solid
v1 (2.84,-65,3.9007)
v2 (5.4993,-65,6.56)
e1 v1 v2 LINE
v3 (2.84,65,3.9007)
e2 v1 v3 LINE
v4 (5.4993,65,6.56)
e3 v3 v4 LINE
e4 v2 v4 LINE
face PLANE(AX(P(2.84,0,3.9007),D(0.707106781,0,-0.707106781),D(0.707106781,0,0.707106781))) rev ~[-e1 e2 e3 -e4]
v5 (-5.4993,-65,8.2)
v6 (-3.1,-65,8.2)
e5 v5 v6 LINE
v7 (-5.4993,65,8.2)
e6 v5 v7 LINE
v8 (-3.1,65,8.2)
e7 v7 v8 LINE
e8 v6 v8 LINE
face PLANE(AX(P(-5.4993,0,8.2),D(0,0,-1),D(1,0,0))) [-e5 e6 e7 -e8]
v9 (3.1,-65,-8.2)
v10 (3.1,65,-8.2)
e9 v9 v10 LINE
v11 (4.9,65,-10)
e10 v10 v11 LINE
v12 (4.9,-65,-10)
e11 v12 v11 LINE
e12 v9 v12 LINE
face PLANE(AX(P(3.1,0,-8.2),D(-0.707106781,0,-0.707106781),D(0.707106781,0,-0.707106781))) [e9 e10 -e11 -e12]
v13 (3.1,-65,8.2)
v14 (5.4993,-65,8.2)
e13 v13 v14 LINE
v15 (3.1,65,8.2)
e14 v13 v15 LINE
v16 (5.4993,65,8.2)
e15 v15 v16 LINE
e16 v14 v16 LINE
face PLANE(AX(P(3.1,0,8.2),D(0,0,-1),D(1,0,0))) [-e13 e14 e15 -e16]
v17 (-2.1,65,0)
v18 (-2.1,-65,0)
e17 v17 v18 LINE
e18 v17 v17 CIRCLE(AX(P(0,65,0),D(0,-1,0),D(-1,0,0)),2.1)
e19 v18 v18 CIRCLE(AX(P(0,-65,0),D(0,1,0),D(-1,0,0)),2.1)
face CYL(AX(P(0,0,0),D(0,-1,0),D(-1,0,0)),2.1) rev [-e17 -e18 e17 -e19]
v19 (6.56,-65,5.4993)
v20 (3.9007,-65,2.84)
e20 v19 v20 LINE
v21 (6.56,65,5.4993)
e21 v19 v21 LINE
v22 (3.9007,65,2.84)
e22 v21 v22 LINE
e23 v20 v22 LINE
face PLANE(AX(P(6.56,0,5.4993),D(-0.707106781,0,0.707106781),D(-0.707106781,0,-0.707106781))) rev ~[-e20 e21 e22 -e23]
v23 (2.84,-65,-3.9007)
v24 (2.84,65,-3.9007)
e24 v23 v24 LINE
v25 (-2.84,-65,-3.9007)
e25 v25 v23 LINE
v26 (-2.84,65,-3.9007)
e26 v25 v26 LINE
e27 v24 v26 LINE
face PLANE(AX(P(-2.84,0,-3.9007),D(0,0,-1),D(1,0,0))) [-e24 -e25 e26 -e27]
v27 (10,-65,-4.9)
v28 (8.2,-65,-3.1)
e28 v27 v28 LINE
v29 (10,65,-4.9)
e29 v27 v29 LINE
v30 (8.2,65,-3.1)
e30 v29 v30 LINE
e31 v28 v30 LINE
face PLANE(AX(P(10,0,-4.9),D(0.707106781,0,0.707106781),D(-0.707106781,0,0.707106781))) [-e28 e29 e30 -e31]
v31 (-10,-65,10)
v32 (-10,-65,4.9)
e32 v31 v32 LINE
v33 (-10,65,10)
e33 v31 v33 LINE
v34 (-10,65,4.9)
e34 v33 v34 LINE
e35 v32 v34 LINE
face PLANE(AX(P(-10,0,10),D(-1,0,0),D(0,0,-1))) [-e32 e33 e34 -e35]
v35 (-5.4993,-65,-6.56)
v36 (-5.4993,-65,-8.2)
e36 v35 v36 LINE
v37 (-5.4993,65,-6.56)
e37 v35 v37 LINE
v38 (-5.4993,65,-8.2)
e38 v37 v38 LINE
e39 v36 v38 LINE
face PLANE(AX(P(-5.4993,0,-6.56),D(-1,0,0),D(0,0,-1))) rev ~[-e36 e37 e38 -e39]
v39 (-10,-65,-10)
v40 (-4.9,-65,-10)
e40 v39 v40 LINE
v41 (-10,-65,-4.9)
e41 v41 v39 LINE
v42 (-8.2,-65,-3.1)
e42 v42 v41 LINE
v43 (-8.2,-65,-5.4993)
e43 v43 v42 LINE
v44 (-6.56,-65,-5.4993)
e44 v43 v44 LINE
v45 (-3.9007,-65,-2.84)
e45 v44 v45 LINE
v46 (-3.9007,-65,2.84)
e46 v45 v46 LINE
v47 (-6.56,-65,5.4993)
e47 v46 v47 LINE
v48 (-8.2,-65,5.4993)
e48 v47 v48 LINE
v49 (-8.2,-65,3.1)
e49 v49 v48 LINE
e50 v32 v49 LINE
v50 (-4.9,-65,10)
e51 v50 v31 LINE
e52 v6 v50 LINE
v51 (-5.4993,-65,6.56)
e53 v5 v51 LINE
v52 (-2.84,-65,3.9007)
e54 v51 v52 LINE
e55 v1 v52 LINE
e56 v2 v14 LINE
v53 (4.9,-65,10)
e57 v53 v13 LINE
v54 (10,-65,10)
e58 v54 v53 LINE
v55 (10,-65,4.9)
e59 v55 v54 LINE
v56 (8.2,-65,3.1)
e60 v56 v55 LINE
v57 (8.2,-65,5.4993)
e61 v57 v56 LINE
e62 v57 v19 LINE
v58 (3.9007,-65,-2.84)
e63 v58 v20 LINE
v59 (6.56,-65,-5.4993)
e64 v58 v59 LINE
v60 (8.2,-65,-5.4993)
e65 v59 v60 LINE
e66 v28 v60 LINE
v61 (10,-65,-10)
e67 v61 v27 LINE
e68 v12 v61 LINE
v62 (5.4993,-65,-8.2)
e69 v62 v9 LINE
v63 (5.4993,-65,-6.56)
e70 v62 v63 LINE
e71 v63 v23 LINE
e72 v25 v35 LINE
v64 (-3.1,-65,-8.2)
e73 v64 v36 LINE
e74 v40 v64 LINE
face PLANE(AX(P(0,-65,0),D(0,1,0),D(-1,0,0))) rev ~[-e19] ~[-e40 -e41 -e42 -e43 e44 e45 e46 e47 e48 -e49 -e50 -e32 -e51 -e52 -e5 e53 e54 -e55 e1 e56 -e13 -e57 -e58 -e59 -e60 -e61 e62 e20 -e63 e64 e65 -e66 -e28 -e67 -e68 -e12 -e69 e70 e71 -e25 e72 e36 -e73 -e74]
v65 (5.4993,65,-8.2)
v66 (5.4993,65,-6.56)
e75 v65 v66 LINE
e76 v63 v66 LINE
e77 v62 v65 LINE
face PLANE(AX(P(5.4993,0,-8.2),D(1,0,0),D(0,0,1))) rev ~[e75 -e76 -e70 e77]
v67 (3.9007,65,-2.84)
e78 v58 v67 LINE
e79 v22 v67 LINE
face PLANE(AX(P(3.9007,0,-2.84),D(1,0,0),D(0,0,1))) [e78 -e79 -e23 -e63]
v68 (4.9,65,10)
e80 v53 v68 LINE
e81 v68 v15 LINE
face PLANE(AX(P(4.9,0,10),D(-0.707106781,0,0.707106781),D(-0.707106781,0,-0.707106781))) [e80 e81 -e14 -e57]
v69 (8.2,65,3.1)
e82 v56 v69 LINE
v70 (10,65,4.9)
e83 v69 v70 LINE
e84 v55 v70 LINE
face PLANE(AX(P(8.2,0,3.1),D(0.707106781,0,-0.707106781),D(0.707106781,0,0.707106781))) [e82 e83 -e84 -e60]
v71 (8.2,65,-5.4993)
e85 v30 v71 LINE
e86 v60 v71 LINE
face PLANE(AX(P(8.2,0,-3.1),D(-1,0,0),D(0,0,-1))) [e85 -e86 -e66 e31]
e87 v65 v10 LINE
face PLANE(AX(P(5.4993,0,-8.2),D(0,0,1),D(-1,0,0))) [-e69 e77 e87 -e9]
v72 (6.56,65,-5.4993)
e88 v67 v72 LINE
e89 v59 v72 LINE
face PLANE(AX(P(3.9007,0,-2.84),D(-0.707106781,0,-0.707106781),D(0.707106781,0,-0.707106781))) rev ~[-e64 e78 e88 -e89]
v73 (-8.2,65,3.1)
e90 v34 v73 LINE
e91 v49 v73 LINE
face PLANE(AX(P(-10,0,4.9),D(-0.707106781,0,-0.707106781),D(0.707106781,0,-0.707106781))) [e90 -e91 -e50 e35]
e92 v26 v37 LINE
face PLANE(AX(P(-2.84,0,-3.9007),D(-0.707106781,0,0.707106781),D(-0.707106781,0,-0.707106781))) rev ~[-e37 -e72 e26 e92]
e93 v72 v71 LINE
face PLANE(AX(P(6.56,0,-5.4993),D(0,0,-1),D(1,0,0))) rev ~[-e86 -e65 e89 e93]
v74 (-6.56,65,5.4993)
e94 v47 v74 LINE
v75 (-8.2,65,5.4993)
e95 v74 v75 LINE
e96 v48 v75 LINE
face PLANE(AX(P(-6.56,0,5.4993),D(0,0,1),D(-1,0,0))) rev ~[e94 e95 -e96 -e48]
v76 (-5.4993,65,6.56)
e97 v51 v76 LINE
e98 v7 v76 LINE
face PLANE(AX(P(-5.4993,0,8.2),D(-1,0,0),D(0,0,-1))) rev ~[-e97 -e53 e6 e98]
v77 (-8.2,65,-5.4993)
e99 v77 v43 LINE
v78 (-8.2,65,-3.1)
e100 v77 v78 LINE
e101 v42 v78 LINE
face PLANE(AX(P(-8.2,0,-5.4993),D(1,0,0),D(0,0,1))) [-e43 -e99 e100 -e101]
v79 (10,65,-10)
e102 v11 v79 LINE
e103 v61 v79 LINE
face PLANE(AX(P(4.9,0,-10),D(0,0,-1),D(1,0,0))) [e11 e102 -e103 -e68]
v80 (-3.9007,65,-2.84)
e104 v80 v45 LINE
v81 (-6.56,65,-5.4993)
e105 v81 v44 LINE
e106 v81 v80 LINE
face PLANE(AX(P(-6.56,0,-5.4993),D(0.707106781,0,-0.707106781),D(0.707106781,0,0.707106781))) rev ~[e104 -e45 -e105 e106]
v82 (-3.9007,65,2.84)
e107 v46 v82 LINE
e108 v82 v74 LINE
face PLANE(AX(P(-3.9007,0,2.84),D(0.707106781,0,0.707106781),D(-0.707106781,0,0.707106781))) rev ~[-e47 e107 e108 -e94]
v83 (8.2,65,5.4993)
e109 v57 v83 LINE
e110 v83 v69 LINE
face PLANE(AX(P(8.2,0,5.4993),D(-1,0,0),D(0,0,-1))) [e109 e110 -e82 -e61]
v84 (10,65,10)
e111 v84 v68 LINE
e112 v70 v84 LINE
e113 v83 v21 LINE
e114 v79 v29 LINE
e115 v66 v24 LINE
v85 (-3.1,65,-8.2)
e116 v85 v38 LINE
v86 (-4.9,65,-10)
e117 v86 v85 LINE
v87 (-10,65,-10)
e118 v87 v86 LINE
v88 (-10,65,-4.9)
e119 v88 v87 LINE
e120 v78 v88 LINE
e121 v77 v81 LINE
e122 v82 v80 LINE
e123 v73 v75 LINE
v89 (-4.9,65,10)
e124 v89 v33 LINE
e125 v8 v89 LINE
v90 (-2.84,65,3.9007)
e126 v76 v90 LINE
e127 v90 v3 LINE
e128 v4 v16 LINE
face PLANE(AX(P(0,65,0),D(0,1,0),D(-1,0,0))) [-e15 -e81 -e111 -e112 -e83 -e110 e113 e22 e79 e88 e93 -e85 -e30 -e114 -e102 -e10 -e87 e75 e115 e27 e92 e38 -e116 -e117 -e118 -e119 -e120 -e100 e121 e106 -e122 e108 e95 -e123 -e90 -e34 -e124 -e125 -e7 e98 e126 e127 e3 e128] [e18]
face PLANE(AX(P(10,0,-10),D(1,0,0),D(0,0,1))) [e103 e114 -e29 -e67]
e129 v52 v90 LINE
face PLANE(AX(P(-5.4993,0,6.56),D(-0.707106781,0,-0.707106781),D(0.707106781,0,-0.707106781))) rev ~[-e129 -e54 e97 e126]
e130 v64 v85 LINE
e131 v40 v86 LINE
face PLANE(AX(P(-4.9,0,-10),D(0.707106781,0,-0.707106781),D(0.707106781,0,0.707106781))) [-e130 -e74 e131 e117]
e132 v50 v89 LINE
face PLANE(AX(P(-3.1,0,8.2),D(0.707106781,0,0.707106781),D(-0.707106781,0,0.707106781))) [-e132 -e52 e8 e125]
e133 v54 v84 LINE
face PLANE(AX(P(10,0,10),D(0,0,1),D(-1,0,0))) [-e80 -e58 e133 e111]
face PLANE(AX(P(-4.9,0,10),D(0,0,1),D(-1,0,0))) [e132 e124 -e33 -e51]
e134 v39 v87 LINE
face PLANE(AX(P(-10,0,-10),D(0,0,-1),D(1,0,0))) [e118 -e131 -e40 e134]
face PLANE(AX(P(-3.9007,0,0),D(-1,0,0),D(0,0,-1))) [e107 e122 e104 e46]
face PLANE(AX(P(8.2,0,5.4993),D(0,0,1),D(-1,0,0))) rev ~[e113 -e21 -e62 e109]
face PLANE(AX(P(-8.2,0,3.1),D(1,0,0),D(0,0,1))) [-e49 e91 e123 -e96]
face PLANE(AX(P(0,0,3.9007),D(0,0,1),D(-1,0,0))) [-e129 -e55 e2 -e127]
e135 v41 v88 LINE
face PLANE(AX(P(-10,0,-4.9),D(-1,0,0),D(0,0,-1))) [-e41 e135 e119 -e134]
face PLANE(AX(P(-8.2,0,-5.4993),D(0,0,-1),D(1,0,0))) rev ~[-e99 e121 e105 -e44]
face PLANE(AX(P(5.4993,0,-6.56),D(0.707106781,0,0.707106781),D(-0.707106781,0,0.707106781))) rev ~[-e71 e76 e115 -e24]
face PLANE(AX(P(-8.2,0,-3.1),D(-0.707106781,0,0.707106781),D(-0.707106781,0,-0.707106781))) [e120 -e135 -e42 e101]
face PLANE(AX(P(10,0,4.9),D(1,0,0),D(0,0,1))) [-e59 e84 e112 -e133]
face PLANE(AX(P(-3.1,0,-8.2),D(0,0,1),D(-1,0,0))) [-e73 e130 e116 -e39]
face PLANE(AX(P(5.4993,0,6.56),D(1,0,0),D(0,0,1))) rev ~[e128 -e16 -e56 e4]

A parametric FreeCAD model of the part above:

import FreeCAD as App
import Part
import Sketcher


def add_polygon(sketch, points):
    """Adds a closed chain of lines whose ends are joined by coincident constraints."""
    first, n = sketch.GeometryCount, len(points)
    for a, b in zip(points, points[1:] + points[:1]):
        sketch.addGeometry(Part.LineSegment(App.Vector(*a, 0), App.Vector(*b, 0)), False)
    for i in range(n):
        sketch.addConstraint(Sketcher.Constraint("Coincident", first + i, 2, first + (i + 1) % n, 1))

doc = App.newDocument("Part")
params = doc.addObject("Spreadsheet::Sheet", "Params")
for row, (alias, value) in enumerate([
    ("sketch1_diameter", "4.2 mm"),
    ("sketch1_width", "1.64 mm"),
    ("pad1_length", "130 mm"),
], start=1):
    params.set(f"A{row}", alias)
    params.set(f"B{row}", "=" + value)
    params.setAlias(f"B{row}", alias)

body = doc.addObject("PartDesign::Body", "Body")

sketch1 = body.newObject("Sketcher::SketchObject", "Sketch")
sketch1.AttachmentSupport = (doc.getObject("XZ_Plane"), [""])
sketch1.MapMode = "FlatFace"
add_polygon(sketch1, [(-3.9007, -2.84), (-3.9007, 2.84), (-6.56, 5.4993), (-8.2, 5.4993), (-8.2, 3.1), (-10, 4.9), (-10, 10), (-4.9, 10), (-3.1, 8.2), (-5.4993, 8.2), (-5.4993, 6.56), (-2.84, 3.9007), (2.84, 3.9007), (5.4993, 6.56), (5.4993, 8.2), (3.1, 8.2), (4.9, 10), (10, 10), (10, 4.9), (8.2, 3.1), (8.2, 5.4993), (6.56, 5.4993), (3.9007, 2.84), (3.9007, -2.84), (6.56, -5.4993), (8.2, -5.4993), (8.2, -3.1), (10, -4.9), (10, -10), (4.9, -10), (3.1, -8.2), (5.4993, -8.2), (5.4993, -6.56), (2.84, -3.9007), (-2.84, -3.9007), (-5.4993, -6.56), (-5.4993, -8.2), (-3.1, -8.2), (-4.9, -10), (-10, -10), (-10, -4.9), (-8.2, -3.1), (-8.2, -5.4993), (-6.56, -5.4993)])
sketch1.addGeometry(Part.Circle(App.Vector(0, 0, 0), App.Vector(0, 0, 1), 2.1), False)
sketch1.addConstraint(Sketcher.Constraint("Vertical", 0))
sketch1.addConstraint(Sketcher.Constraint("Horizontal", 2))
sketch1.addConstraint(Sketcher.Constraint("Vertical", 3))
sketch1.addConstraint(Sketcher.Constraint("Vertical", 5))
sketch1.addConstraint(Sketcher.Constraint("Horizontal", 6))
sketch1.addConstraint(Sketcher.Constraint("Horizontal", 8))
sketch1.addConstraint(Sketcher.Constraint("Vertical", 9))
sketch1.addConstraint(Sketcher.Constraint("Horizontal", 11))
sketch1.addConstraint(Sketcher.Constraint("Vertical", 13))
sketch1.addConstraint(Sketcher.Constraint("Horizontal", 14))
sketch1.addConstraint(Sketcher.Constraint("Horizontal", 16))
sketch1.addConstraint(Sketcher.Constraint("Vertical", 17))
sketch1.addConstraint(Sketcher.Constraint("Vertical", 19))
sketch1.addConstraint(Sketcher.Constraint("Horizontal", 20))
sketch1.addConstraint(Sketcher.Constraint("Vertical", 22))
sketch1.addConstraint(Sketcher.Constraint("Horizontal", 24))
sketch1.addConstraint(Sketcher.Constraint("Vertical", 25))
sketch1.addConstraint(Sketcher.Constraint("Vertical", 27))
sketch1.addConstraint(Sketcher.Constraint("Horizontal", 28))
sketch1.addConstraint(Sketcher.Constraint("Horizontal", 30))
sketch1.addConstraint(Sketcher.Constraint("Vertical", 31))
sketch1.addConstraint(Sketcher.Constraint("Horizontal", 33))
sketch1.addConstraint(Sketcher.Constraint("Vertical", 35))
sketch1.addConstraint(Sketcher.Constraint("Horizontal", 36))
sketch1.addConstraint(Sketcher.Constraint("Horizontal", 38))
sketch1.addConstraint(Sketcher.Constraint("Vertical", 39))
sketch1.addConstraint(Sketcher.Constraint("Vertical", 41))
sketch1.addConstraint(Sketcher.Constraint("Horizontal", 42))
sketch1.addConstraint(Sketcher.Constraint("Coincident", 44, 3, -1, 1))
sketch1.addConstraint(Sketcher.Constraint("Symmetric", 0, 2, 22, 2, -1, 1))
sketch1.addConstraint(Sketcher.Constraint("Symmetric", 1, 2, 23, 2, -1, 1))
sketch1.addConstraint(Sketcher.Constraint("Symmetric", 3, 2, 25, 2, -1, 1))
sketch1.addConstraint(Sketcher.Constraint("Symmetric", 4, 2, 26, 2, -1, 1))
sketch1.addConstraint(Sketcher.Constraint("Symmetric", 6, 2, 28, 2, -1, 1))
sketch1.addConstraint(Sketcher.Constraint("Symmetric", 7, 2, 29, 2, -1, 1))
sketch1.addConstraint(Sketcher.Constraint("Symmetric", 9, 2, 31, 2, -1, 1))
sketch1.addConstraint(Sketcher.Constraint("Symmetric", 10, 2, 32, 2, -1, 1))
sketch1.addConstraint(Sketcher.Constraint("Symmetric", 12, 2, 34, 2, -1, 1))
sketch1.addConstraint(Sketcher.Constraint("Symmetric", 14, 2, 36, 2, -1, 1))
sketch1.addConstraint(Sketcher.Constraint("Symmetric", 15, 2, 37, 2, -1, 1))
sketch1.addConstraint(Sketcher.Constraint("Symmetric", 17, 2, 39, 2, -1, 1))
sketch1.addConstraint(Sketcher.Constraint("Symmetric", 18, 2, 40, 2, -1, 1))
sketch1.addConstraint(Sketcher.Constraint("Symmetric", 20, 2, 42, 2, -1, 1))
sketch1.addConstraint(Sketcher.Constraint("Symmetric", 9, 2, 12, 2, -2))
sketch1.addConstraint(Sketcher.Constraint("Symmetric", 7, 2, 14, 2, -2))
sketch1.addConstraint(Sketcher.Constraint("Symmetric", 6, 2, 15, 2, -2))
sketch1.addConstraint(Sketcher.Constraint("Symmetric", 4, 2, 17, 2, -2))
sketch1.addConstraint(Sketcher.Constraint("Symmetric", 3, 2, 18, 2, -2))
sketch1.addConstraint(Sketcher.Constraint("Symmetric", 1, 2, 20, 2, -2))
sketch1.addConstraint(Sketcher.Constraint("Parallel", 1, 4))
sketch1.addConstraint(Sketcher.Constraint("Parallel", 4, 7))
sketch1.addConstraint(Sketcher.Constraint("Parallel", 7, 10))
sketch1.addConstraint(Sketcher.Constraint("Perpendicular", 10, 12))
sketch1.addConstraint(Sketcher.Constraint("Parallel", 12, 15))
sketch1.addConstraint(Sketcher.Constraint("Parallel", 18, 21))
sketch1.addConstraint(Sketcher.Constraint("Perpendicular", 32, 34))
sketch1.addConstraint(Sketcher.Constraint("Parallel", 40, 43))
sketch1.addConstraint(Sketcher.Constraint("Equal", 33, 0))
sketch1.addConstraint(Sketcher.Constraint("Equal", 36, 3))
sketch1.addConstraint(Sketcher.Constraint("Equal", 38, 5))
sketch1.addConstraint(Sketcher.Constraint("Equal", 42, 9))
sketch1.addConstraint(Sketcher.Constraint("Equal", 4, 7))
sketch1.addConstraint(Sketcher.Constraint("Equal", 1, 10))
sketch1.addConstraint(Sketcher.Constraint("Diameter", 44, 4.2))
sketch1.addConstraint(Sketcher.Constraint("DistanceX", 4, 2, -1, 1, 10.0))
sketch1.addConstraint(Sketcher.Constraint("DistanceX", 2, 2, 2, 1, 1.64))
sketch1.addConstraint(Sketcher.Constraint("DistanceY", -1, 1, 3, 2, 3.1))
sketch1.addConstraint(Sketcher.Constraint("DistanceX", 4, 2, 2, 2, 1.8))
sketch1.addConstraint(Sketcher.Constraint("DistanceY", -1, 1, 0, 2, 2.84))
sketch1.addConstraint(Sketcher.Constraint("DistanceX", 8, 2, 8, 1, 2.3993))
sketch1.setExpression("Constraints[107]", "Params.sketch1_diameter")
sketch1.setExpression("Constraints[109]", "Params.sketch1_width")
pad1 = body.newObject("PartDesign::Pad", "Pad")
pad1.Profile = sketch1
pad1.setExpression("Length", "Params.pad1_length")
pad1.Midplane = True

doc.recompute()
